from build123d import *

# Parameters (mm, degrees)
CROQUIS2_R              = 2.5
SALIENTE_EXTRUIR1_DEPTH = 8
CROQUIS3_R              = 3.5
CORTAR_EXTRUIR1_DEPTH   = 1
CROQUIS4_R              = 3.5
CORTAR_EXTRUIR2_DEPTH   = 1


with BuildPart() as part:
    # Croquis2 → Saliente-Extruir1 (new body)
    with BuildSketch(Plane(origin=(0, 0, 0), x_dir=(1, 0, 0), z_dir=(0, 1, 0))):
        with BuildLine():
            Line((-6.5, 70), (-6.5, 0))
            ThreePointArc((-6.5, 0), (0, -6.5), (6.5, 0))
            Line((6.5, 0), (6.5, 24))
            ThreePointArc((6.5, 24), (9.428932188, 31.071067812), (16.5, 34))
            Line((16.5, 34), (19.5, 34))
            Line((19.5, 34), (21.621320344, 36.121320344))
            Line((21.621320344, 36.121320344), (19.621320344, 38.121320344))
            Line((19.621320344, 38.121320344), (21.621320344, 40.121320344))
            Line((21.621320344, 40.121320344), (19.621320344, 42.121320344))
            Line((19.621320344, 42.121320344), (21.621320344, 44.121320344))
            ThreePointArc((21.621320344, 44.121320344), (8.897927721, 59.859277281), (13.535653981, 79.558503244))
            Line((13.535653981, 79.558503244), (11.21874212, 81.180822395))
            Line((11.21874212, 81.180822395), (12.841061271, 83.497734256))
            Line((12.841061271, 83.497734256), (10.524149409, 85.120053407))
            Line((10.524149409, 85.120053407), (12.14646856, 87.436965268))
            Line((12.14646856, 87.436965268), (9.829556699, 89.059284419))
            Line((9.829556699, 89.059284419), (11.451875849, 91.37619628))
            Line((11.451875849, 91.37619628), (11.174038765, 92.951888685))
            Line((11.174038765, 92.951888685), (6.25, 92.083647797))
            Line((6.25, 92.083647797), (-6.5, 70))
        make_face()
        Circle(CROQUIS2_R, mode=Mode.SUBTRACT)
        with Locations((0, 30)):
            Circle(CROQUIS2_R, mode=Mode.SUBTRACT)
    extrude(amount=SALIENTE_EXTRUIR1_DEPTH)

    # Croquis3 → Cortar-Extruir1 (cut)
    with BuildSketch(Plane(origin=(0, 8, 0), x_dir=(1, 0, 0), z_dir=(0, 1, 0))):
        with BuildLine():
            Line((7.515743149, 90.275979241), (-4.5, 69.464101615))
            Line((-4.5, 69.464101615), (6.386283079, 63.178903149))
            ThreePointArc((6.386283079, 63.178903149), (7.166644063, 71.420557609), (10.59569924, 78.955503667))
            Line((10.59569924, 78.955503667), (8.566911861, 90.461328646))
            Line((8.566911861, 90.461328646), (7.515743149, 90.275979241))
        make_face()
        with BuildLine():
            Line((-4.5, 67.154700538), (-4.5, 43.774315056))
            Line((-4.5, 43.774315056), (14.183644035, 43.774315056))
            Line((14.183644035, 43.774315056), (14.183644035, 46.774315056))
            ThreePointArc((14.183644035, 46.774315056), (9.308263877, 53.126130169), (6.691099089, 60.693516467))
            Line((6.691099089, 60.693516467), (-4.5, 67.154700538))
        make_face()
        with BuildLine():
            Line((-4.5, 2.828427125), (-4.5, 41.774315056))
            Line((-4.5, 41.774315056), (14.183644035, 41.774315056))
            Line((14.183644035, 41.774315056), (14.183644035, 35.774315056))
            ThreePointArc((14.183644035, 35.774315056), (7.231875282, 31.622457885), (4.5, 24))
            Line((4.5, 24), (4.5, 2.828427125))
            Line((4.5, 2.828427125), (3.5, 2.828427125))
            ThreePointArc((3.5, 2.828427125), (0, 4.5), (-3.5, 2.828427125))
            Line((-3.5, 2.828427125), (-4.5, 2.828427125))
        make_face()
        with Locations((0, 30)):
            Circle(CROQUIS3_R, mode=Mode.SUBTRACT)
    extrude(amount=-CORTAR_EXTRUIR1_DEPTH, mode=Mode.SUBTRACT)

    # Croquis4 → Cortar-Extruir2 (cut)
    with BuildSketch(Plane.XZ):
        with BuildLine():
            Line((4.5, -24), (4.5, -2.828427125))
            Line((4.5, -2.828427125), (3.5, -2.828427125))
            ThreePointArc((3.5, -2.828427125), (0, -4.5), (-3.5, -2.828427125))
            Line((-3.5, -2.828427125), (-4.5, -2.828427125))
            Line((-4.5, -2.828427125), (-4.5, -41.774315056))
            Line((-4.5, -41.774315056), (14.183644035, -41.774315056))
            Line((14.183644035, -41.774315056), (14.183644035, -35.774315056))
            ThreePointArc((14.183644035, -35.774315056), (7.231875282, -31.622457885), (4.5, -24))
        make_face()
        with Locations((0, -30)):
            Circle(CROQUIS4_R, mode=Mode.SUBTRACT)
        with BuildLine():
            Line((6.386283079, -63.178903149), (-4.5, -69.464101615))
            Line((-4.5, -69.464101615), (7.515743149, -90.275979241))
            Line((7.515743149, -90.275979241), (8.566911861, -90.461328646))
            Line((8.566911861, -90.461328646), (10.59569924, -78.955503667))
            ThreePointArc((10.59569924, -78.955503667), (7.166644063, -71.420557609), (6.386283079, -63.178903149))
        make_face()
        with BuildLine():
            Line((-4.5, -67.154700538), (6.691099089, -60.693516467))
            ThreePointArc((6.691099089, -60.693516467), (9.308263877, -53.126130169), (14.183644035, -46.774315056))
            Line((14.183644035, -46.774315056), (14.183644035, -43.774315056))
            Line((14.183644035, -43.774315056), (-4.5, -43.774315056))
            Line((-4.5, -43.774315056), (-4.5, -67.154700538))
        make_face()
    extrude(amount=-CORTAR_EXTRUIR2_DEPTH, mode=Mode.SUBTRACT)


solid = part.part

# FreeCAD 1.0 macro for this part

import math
import FreeCAD as App
import Part
import Sketcher
Q = App.Units.Quantity

doc = App.newDocument("Part")
params = doc.addObject("Spreadsheet::Sheet", "Params")
for row, (alias, value) in enumerate([
    ("sketch1_diameter", "5 mm"),
    ("sketch1_radius", "10 mm"),
    ("sketch1_radius2", "23 mm"),
    ("sketch1_radius3", "6.5 mm"),
    ("sketch1_width", "3 mm"),
    ("pad1_length", "8 mm"),
    ("sketch2_diameter", "7 mm"),
    ("sketch2_radius", "25 mm"),
    ("sketch2_radius2", "12 mm"),
    ("sketch2_radius3", "4.5 mm"),
    ("sketch2_width", "1 mm"),
    ("pocket1_length", "1 mm"),
    ("sketch3_diameter", "7 mm"),
    ("sketch3_radius", "12 mm"),
    ("sketch3_radius2", "25 mm"),
    ("sketch3_radius3", "4.5 mm"),
    ("sketch3_width", "1 mm"),
    ("pocket2_length", "1 mm"),
], start=1):
    params.set(f"A{row}", alias)
    params.set(f"B{row}", "=" + value)
    params.setAlias(f"B{row}", alias)

body = doc.addObject("PartDesign::Body", "Body")

# Sketch on XZ plane
sketch1 = body.newObject("Sketcher::SketchObject", "Sketch")
sketch1.AttachmentSupport = (doc.getObject("XZ_Plane"), [""])
sketch1.MapMode = "FlatFace"
sketch1.addGeometry([
    Part.LineSegment(App.Vector(-6.5, -70, 0), App.Vector(-6.5, 0, 0)),  # 0
    Part.ArcOfCircle(Part.Circle(App.Vector(0, 0, 0), App.Vector(0, 0, 1), 6.5), math.radians(0), math.radians(180)),  # 1
    Part.LineSegment(App.Vector(6.5, 0, 0), App.Vector(6.5, -24, 0)),  # 2
    Part.ArcOfCircle(Part.Circle(App.Vector(16.5, -24, 0), App.Vector(0, 0, 1), 10), math.radians(180), math.radians(270)),  # 3
    Part.LineSegment(App.Vector(16.5, -34, 0), App.Vector(19.5, -34, 0)),  # 4
    Part.LineSegment(App.Vector(19.5, -34, 0), App.Vector(21.6, -36.1, 0)),  # 5
    Part.LineSegment(App.Vector(21.6, -36.1, 0), App.Vector(19.6, -38.1, 0)),  # 6
    Part.LineSegment(App.Vector(19.6, -38.1, 0), App.Vector(21.6, -40.1, 0)),  # 7
    Part.LineSegment(App.Vector(21.6, -40.1, 0), App.Vector(19.6, -42.1, 0)),  # 8
    Part.LineSegment(App.Vector(19.6, -42.1, 0), App.Vector(21.6, -44.1, 0)),  # 9
    Part.ArcOfCircle(Part.Circle(App.Vector(31.3, -65, 0), App.Vector(0, 0, 1), 23), math.radians(115), math.radians(219)),  # 10
    Part.LineSegment(App.Vector(13.5, -79.6, 0), App.Vector(11.2, -81.2, 0)),  # 11
    Part.LineSegment(App.Vector(11.2, -81.2, 0), App.Vector(12.8, -83.5, 0)),  # 12
    Part.LineSegment(App.Vector(12.8, -83.5, 0), App.Vector(10.5, -85.1, 0)),  # 13
    Part.LineSegment(App.Vector(10.5, -85.1, 0), App.Vector(12.1, -87.4, 0)),  # 14
    Part.LineSegment(App.Vector(12.1, -87.4, 0), App.Vector(9.8, -89.1, 0)),  # 15
    Part.LineSegment(App.Vector(9.8, -89.1, 0), App.Vector(11.5, -91.4, 0)),  # 16
    Part.LineSegment(App.Vector(11.5, -91.4, 0), App.Vector(11.2, -93, 0)),  # 17
    Part.LineSegment(App.Vector(11.2, -93, 0), App.Vector(6.2, -92.1, 0)),  # 18
    Part.LineSegment(App.Vector(6.2, -92.1, 0), App.Vector(-6.5, -70, 0)),  # 19
    Part.Circle(App.Vector(0, 0, 0), App.Vector(0, 0, 1), 2.5),  # 20
    Part.Circle(App.Vector(0, -30, 0), App.Vector(0, 0, 1), 2.5),  # 21
], False)
sketch1.addConstraint([
    Sketcher.Constraint("Tangent", 0, 2, 1, 2),
    Sketcher.Constraint("Tangent", 1, 1, 2, 1),
    Sketcher.Constraint("Tangent", 2, 2, 3, 1),
    Sketcher.Constraint("Tangent", 3, 2, 4, 1),
    Sketcher.Constraint("Coincident", 4, 2, 5, 1),
    Sketcher.Constraint("Coincident", 5, 2, 6, 1),
    Sketcher.Constraint("Coincident", 6, 2, 7, 1),
    Sketcher.Constraint("Coincident", 7, 2, 8, 1),
    Sketcher.Constraint("Coincident", 8, 2, 9, 1),
    Sketcher.Constraint("Coincident", 9, 2, 10, 1),
    Sketcher.Constraint("Coincident", 10, 2, 11, 1),
    Sketcher.Constraint("Coincident", 11, 2, 12, 1),
    Sketcher.Constraint("Coincident", 12, 2, 13, 1),
    Sketcher.Constraint("Coincident", 13, 2, 14, 1),
    Sketcher.Constraint("Coincident", 14, 2, 15, 1),
    Sketcher.Constraint("Coincident", 15, 2, 16, 1),
    Sketcher.Constraint("Coincident", 16, 2, 17, 1),
    Sketcher.Constraint("Coincident", 17, 2, 18, 1),
    Sketcher.Constraint("Coincident", 18, 2, 19, 1),
    Sketcher.Constraint("Coincident", 19, 2, 0, 1),
    Sketcher.Constraint("Vertical", 0),
    Sketcher.Constraint("Vertical", 2),
    Sketcher.Constraint("Horizontal", 4),
    Sketcher.Constraint("Coincident", 1, 3, -1, 1),
    Sketcher.Constraint("Coincident", 20, 3, -1, 1),
    Sketcher.Constraint("Equal", 20, 21),
    Sketcher.Constraint("PointOnObject", 21, 3, -2),
    Sketcher.Constraint("Perpendicular", 5, 6),
    Sketcher.Constraint("Perpendicular", 6, 7),
    Sketcher.Constraint("Perpendicular", 7, 8),
    Sketcher.Constraint("Perpendicular", 8, 9),
    Sketcher.Constraint("Perpendicular", 11, 12),
    Sketcher.Constraint("Perpendicular", 12, 13),
    Sketcher.Constraint("Perpendicular", 13, 14),
    Sketcher.Constraint("Perpendicular", 14, 15),
    Sketcher.Constraint("Perpendicular", 15, 16),
    Sketcher.Constraint("Perpendicular", 17, 18),
    Sketcher.Constraint("Vertical", 5, 2, 7, 2),
    Sketcher.Constraint("Vertical", 6, 2, 8, 2),
    Sketcher.Constraint("Vertical", 7, 2, 9, 2),
    Sketcher.Constraint("Equal", 6, 7),
    Sketcher.Constraint("Equal", 9, 11),
    Sketcher.Constraint("Equal", 11, 12),
    Sketcher.Constraint("Equal", 12, 13),
    Sketcher.Constraint("Equal", 13, 14),
    Sketcher.Constraint("Equal", 14, 15),
    Sketcher.Constraint("Equal", 15, 16),
    Sketcher.Constraint("Diameter", 20, 5.0),
    Sketcher.Constraint("Radius", 3, 10.0),
    Sketcher.Constraint("Radius", 10, 23.0),
    Sketcher.Constraint("Radius", 1, 6.5),
    Sketcher.Constraint("DistanceX", 4, 1, 4, 2, 3.0),
    Sketcher.Constraint("DistanceY", 0, 1, 0, 2, 70.0),
    Sketcher.Constraint("DistanceY", 2, 2, 2, 1, 24.0),
    Sketcher.Constraint("Angle", 11, Q("-145 deg")),
    Sketcher.Constraint("Angle", 17, Q("-100 deg")),
    Sketcher.Constraint("Angle", 19, Q("120 deg")),
    Sketcher.Constraint("Distance", 5, 3.0),
    Sketcher.Constraint("Distance", 18, 5.0),
    Sketcher.Constraint("DistanceY", 21, 3, -1, 1, 30.0),
    Sketcher.Constraint("DistanceX", 6, 2, 5, 2, 2.0),
    Sketcher.Constraint("Distance", 17, 1.6),
    Sketcher.Constraint("Distance", 19, 25.5),
])
sketch1.setExpression("Constraints[47]", "Params.sketch1_diameter")
sketch1.setExpression("Constraints[48]", "Params.sketch1_radius")
sketch1.setExpression("Constraints[49]", "Params.sketch1_radius2")
sketch1.setExpression("Constraints[50]", "Params.sketch1_radius3")
sketch1.setExpression("Constraints[51]", "Params.sketch1_width")
pad1 = body.newObject("PartDesign::Pad", "Pad")
pad1.Profile = sketch1
pad1.setExpression("Length", "Params.pad1_length")
pad1.Reversed = True

# Sketch on XZ plane
sketch2 = body.newObject("Sketcher::SketchObject", "Sketch001")
sketch2.AttachmentSupport = (doc.getObject("XZ_Plane"), [""])
sketch2.MapMode = "FlatFace"
sketch2.AttachmentOffset = App.Placement(App.Vector(0, 0, -8), App.Rotation())
sketch2.addGeometry([
    Part.LineSegment(App.Vector(7.5, -90.3, 0), App.Vector(-4.5, -69.5, 0)),  # 0
    Part.LineSegment(App.Vector(-4.5, -69.5, 0), App.Vector(6.4, -63.2, 0)),  # 1
    Part.ArcOfCircle(Part.Circle(App.Vector(31.3, -65, 0), App.Vector(0, 0, 1), 25), math.radians(176), math.radians(214)),  # 2
    Part.LineSegment(App.Vector(10.6, -79, 0), App.Vector(8.6, -90.5, 0)),  # 3
    Part.LineSegment(App.Vector(8.6, -90.5, 0), App.Vector(7.5, -90.3, 0)),  # 4
    Part.LineSegment(App.Vector(-4.5, -67.2, 0), App.Vector(-4.5, -43.8, 0)),  # 5
    Part.LineSegment(App.Vector(-4.5, -43.8, 0), App.Vector(14.2, -43.8, 0)),  # 6
    Part.LineSegment(App.Vector(14.2, -43.8, 0), App.Vector(14.2, -46.8, 0)),  # 7
    Part.ArcOfCircle(Part.Circle(App.Vector(31.3, -65, 0), App.Vector(0, 0, 1), 25), math.radians(133), math.radians(170)),  # 8
    Part.LineSegment(App.Vector(6.7, -60.7, 0), App.Vector(-4.5, -67.2, 0)),  # 9
    Part.LineSegment(App.Vector(-4.5, -41.8, 0), App.Vector(-4.5, -2.8, 0)),  # 10
    Part.LineSegment(App.Vector(-4.5, -2.8, 0), App.Vector(-3.5, -2.8, 0)),  # 11
    Part.ArcOfCircle(Part.Circle(App.Vector(0, 0, 0), App.Vector(0, 0, 1), 4.5), math.radians(-141), math.radians(-39)),  # 12
    Part.LineSegment(App.Vector(3.5, -2.8, 0), App.Vector(4.5, -2.8, 0)),  # 13
    Part.LineSegment(App.Vector(4.5, -2.8, 0), App.Vector(4.5, -24, 0)),  # 14
    Part.ArcOfCircle(Part.Circle(App.Vector(16.5, -24, 0), App.Vector(0, 0, 1), 12), math.radians(180), math.radians(259)),  # 15
    Part.LineSegment(App.Vector(14.2, -35.8, 0), App.Vector(14.2, -41.8, 0)),  # 16
    Part.LineSegment(App.Vector(14.2, -41.8, 0), App.Vector(-4.5, -41.8, 0)),  # 17
    Part.Circle(App.Vector(0, -30, 0), App.Vector(0, 0, 1), 3.5),  # 18
], False)
sketch2.addConstraint([
    Sketcher.Constraint("Coincident", 0, 2, 1, 1),
    Sketcher.Constraint("Coincident", 1, 2, 2, 1),
    Sketcher.Constraint("Coincident", 2, 2, 3, 1),
    Sketcher.Constraint("Coincident", 3, 2, 4, 1),
    Sketcher.Constraint("Coincident", 4, 2, 0, 1),
    Sketcher.Constraint("Coincident", 5, 2, 6, 1),
    Sketcher.Constraint("Coincident", 6, 2, 7, 1),
    Sketcher.Constraint("Coincident", 7, 2, 8, 1),
    Sketcher.Constraint("Coincident", 8, 2, 9, 1),
    Sketcher.Constraint("Coincident", 9, 2, 5, 1),
    Sketcher.Constraint("Coincident", 10, 2, 11, 1),
    Sketcher.Constraint("Coincident", 11, 2, 12, 1),
    Sketcher.Constraint("Coincident", 12, 2, 13, 1),
    Sketcher.Constraint("Coincident", 13, 2, 14, 1),
    Sketcher.Constraint("Tangent", 14, 2, 15, 1),
    Sketcher.Constraint("Coincident", 15, 2, 16, 1),
    Sketcher.Constraint("Coincident", 16, 2, 17, 1),
    Sketcher.Constraint("Coincident", 17, 2, 10, 1),
    Sketcher.Constraint("Vertical", 5),
    Sketcher.Constraint("Horizontal", 6),
    Sketcher.Constraint("Vertical", 7),
    Sketcher.Constraint("Vertical", 10),
    Sketcher.Constraint("Horizontal", 11),
    Sketcher.Constraint("Horizontal", 13),
    Sketcher.Constraint("Vertical", 14),
    Sketcher.Constraint("Vertical", 16),
    Sketcher.Constraint("Horizontal", 17),
    Sketcher.Constraint("Coincident", 12, 3, -1, 1),
    Sketcher.Constraint("Coincident", 8, 3, 2, 3),
    Sketcher.Constraint("Equal", 2, 8),
    Sketcher.Constraint("Symmetric", 10, 2, 13, 2, -2),
    Sketcher.Constraint("PointOnObject", 18, 3, -2),
    Sketcher.Constraint("Perpendicular", 0, 1),
    Sketcher.Constraint("Perpendicular", 3, 4),
    Sketcher.Constraint("Parallel", 1, 9),
    Sketcher.Constraint("Vertical", 0, 2, 5, 2),
    Sketcher.Constraint("Vertical", 9, 2, 10, 2),
    Sketcher.Constraint("Vertical", 7, 2, 15, 2),
    Sketcher.Constraint("Diameter", 18, 7.0),
    Sketcher.Constraint("Radius", 2, 25.0),
    Sketcher.Constraint("Radius", 15, 12.0),
    Sketcher.Constraint("Radius", 12, 4.5),
    Sketcher.Constraint("DistanceX", 11, 1, 11, 2, 1.0),
    Sketcher.Constraint("DistanceY", 7, 2, 7, 1, 3.0),
    Sketcher.Constraint("DistanceY", 16, 2, 16, 1, 6.0),
    Sketcher.Constraint("Angle", 0, Q("120 deg")),
    Sketcher.Constraint("Angle", 3, Q("-100 deg")),
    Sketcher.Constraint("DistanceY", 15, 3, -1, 1, 24.0),
    Sketcher.Constraint("DistanceY", 18, 3, -1, 1, 30.0),
    Sketcher.Constraint("DistanceX", 0, 2, 15, 3, 21.0),
    Sketcher.Constraint("DistanceY", 6, 2, 15, 2, 8.0),
    Sketcher.Constraint("DistanceY", 0, 2, -1, 1, 69.464102),
    Sketcher.Constraint("DistanceX", -1, 1, 2, 2, 10.595699),
    Sketcher.Constraint("DistanceX", -1, 1, 8, 2, 6.691099),
    Sketcher.Constraint("DistanceY", 9, 2, -1, 1, 67.154701),
    Sketcher.Constraint("DistanceY", 0, 2, 1, 2, 6.285198),
    Sketcher.Constraint("Distance", 3, 11.683321),
])
sketch2.setExpression("Constraints[38]", "Params.sketch2_diameter")
sketch2.setExpression("Constraints[39]", "Params.sketch2_radius")
sketch2.setExpression("Constraints[40]", "Params.sketch2_radius2")
sketch2.setExpression("Constraints[41]", "Params.sketch2_radius3")
sketch2.setExpression("Constraints[42]", "Params.sketch2_width")
pocket1 = body.newObject("PartDesign::Pocket", "Pocket")
pocket1.Profile = sketch2
pocket1.setExpression("Length", "Params.pocket1_length")
pocket1.Reversed = True

# Sketch on XZ plane
sketch3 = body.newObject("Sketcher::SketchObject", "Sketch002")
sketch3.AttachmentSupport = (doc.getObject("XZ_Plane"), [""])
sketch3.MapMode = "FlatFace"
sketch3.addGeometry([
    Part.LineSegment(App.Vector(4.5, -24, 0), App.Vector(4.5, -2.8, 0)),  # 0
    Part.LineSegment(App.Vector(4.5, -2.8, 0), App.Vector(3.5, -2.8, 0)),  # 1
    Part.ArcOfCircle(Part.Circle(App.Vector(0, 0, 0), App.Vector(0, 0, 1), 4.5), math.radians(-141), math.radians(-39)),  # 2
    Part.LineSegment(App.Vector(-3.5, -2.8, 0), App.Vector(-4.5, -2.8, 0)),  # 3
    Part.LineSegment(App.Vector(-4.5, -2.8, 0), App.Vector(-4.5, -41.8, 0)),  # 4
    Part.LineSegment(App.Vector(-4.5, -41.8, 0), App.Vector(14.2, -41.8, 0)),  # 5
    Part.LineSegment(App.Vector(14.2, -41.8, 0), App.Vector(14.2, -35.8, 0)),  # 6
    Part.ArcOfCircle(Part.Circle(App.Vector(16.5, -24, 0), App.Vector(0, 0, 1), 12), math.radians(180), math.radians(259)),  # 7
    Part.Circle(App.Vector(0, -30, 0), App.Vector(0, 0, 1), 3.5),  # 8
    Part.LineSegment(App.Vector(6.4, -63.2, 0), App.Vector(-4.5, -69.5, 0)),  # 9
    Part.LineSegment(App.Vector(-4.5, -69.5, 0), App.Vector(7.5, -90.3, 0)),  # 10
    Part.LineSegment(App.Vector(7.5, -90.3, 0), App.Vector(8.6, -90.5, 0)),  # 11
    Part.LineSegment(App.Vector(8.6, -90.5, 0), App.Vector(10.6, -79, 0)),  # 12
    Part.ArcOfCircle(Part.Circle(App.Vector(31.3, -65, 0), App.Vector(0, 0, 1), 25), math.radians(176), math.radians(214)),  # 13
    Part.LineSegment(App.Vector(-4.5, -67.2, 0), App.Vector(6.7, -60.7, 0)),  # 14
    Part.ArcOfCircle(Part.Circle(App.Vector(31.3, -65, 0), App.Vector(0, 0, 1), 25), math.radians(133), math.radians(170)),  # 15
    Part.LineSegment(App.Vector(14.2, -46.8, 0), App.Vector(14.2, -43.8, 0)),  # 16
    Part.LineSegment(App.Vector(14.2, -43.8, 0), App.Vector(-4.5, -43.8, 0)),  # 17
    Part.LineSegment(App.Vector(-4.5, -43.8, 0), App.Vector(-4.5, -67.2, 0)),  # 18
], False)
sketch3.addConstraint([
    Sketcher.Constraint("Coincident", 0, 2, 1, 1),
    Sketcher.Constraint("Coincident", 1, 2, 2, 2),
    Sketcher.Constraint("Coincident", 2, 1, 3, 1),
    Sketcher.Constraint("Coincident", 3, 2, 4, 1),
    Sketcher.Constraint("Coincident", 4, 2, 5, 1),
    Sketcher.Constraint("Coincident", 5, 2, 6, 1),
    Sketcher.Constraint("Coincident", 6, 2, 7, 2),
    Sketcher.Constraint("Tangent", 7, 1, 0, 1),
    Sketcher.Constraint("Coincident", 9, 2, 10, 1),
    Sketcher.Constraint("Coincident", 10, 2, 11, 1),
    Sketcher.Constraint("Coincident", 11, 2, 12, 1),
    Sketcher.Constraint("Coincident", 12, 2, 13, 2),
    Sketcher.Constraint("Coincident", 13, 1, 9, 1),
    Sketcher.Constraint("Coincident", 14, 2, 15, 2),
    Sketcher.Constraint("Coincident", 15, 1, 16, 1),
    Sketcher.Constraint("Coincident", 16, 2, 17, 1),
    Sketcher.Constraint("Coincident", 17, 2, 18, 1),
    Sketcher.Constraint("Coincident", 18, 2, 14, 1),
    Sketcher.Constraint("Vertical", 0),
    Sketcher.Constraint("Horizontal", 1),
    Sketcher.Constraint("Horizontal", 3),
    Sketcher.Constraint("Vertical", 4),
    Sketcher.Constraint("Horizontal", 5),
    Sketcher.Constraint("Vertical", 6),
    Sketcher.Constraint("Vertical", 16),
    Sketcher.Constraint("Horizontal", 17),
    Sketcher.Constraint("Vertical", 18),
    Sketcher.Constraint("Coincident", 2, 3, -1, 1),
    Sketcher.Constraint("Coincident", 15, 3, 13, 3),
    Sketcher.Constraint("Equal", 13, 15),
    Sketcher.Constraint("Symmetric", 0, 2, 3, 2, -2),
    Sketcher.Constraint("PointOnObject", 8, 3, -2),
    Sketcher.Constraint("Perpendicular", 9, 10),
    Sketcher.Constraint("Perpendicular", 11, 12),
    Sketcher.Constraint("Perpendicular", 10, 14),
    Sketcher.Constraint("Vertical", 4, 2, 9, 2),
    Sketcher.Constraint("Vertical", 6, 2, 15, 1),
    Sketcher.Constraint("Vertical", 9, 2, 17, 2),
    Sketcher.Constraint("Diameter", 8, 7.0),
    Sketcher.Constraint("Radius", 7, 12.0),
    Sketcher.Constraint("Radius", 13, 25.0),
    Sketcher.Constraint("Radius", 2, 4.5),
    Sketcher.Constraint("DistanceX", 1, 2, 1, 1, 1.0),
    Sketcher.Constraint("DistanceY", 6, 1, 6, 2, 6.0),
    Sketcher.Constraint("DistanceY", 16, 1, 16, 2, 3.0),
    Sketcher.Constraint("Angle", 9, Q("-150 deg")),
    Sketcher.Constraint("Angle", 11, Q("-10 deg")),
    Sketcher.Constraint("DistanceY", 7, 3, -1, 1, 24.0),
    Sketcher.Constraint("DistanceY", 8, 3, -1, 1, 30.0),
    Sketcher.Constraint("DistanceX", 2, 1, 1, 2, 7.0),
    Sketcher.Constraint("DistanceY", 15, 1, 5, 2, 5.0),
    Sketcher.Constraint("DistanceY", 9, 2, -1, 1, 69.464102),
    Sketcher.Constraint("DistanceX", -1, 1, 12, 2, 10.595699),
    Sketcher.Constraint("DistanceX", -1, 1, 14, 2, 6.691099),
    Sketcher.Constraint("DistanceY", 18, 2, -1, 1, 67.154701),
    Sketcher.Constraint("DistanceX", 10, 2, 5, 2, 6.667901),
    Sketcher.Constraint("DistanceY", 12, 2, 13, 1, 15.776601),
])
sketch3.setExpression("Constraints[38]", "Params.sketch3_diameter")
sketch3.setExpression("Constraints[39]", "Params.sketch3_radius")
sketch3.setExpression("Constraints[40]", "Params.sketch3_radius2")
sketch3.setExpression("Constraints[41]", "Params.sketch3_radius3")
sketch3.setExpression("Constraints[42]", "Params.sketch3_width")
pocket2 = body.newObject("PartDesign::Pocket", "Pocket001")
pocket2.Profile = sketch3
pocket2.setExpression("Length", "Params.pocket2_length")

doc.recompute()
